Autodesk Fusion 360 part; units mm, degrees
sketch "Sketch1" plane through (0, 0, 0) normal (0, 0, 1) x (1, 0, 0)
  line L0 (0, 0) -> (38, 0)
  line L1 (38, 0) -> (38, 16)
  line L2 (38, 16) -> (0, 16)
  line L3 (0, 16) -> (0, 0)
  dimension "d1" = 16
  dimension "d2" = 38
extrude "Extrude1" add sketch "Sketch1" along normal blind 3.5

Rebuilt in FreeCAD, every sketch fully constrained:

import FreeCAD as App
import Part
import Sketcher

V = App.Vector


def add_polygon(sketch, points):
    """Adds a closed chain of lines whose ends are joined by coincident constraints."""
    first, n = sketch.GeometryCount, len(points)
    for a, b in zip(points, points[1:] + points[:1]):
        sketch.addGeometry(Part.LineSegment(App.Vector(*a, 0), App.Vector(*b, 0)), False)
    for i in range(n):
        sketch.addConstraint(Sketcher.Constraint("Coincident", first + i, 2, first + (i + 1) % n, 1))

doc = App.newDocument("Part")
body = doc.addObject("PartDesign::Body", "Body")

sketch1 = body.newObject("Sketcher::SketchObject", "Sketch")
sketch1.AttachmentSupport = (doc.getObject("XY_Plane"), [""])
sketch1.MapMode = "FlatFace"
add_polygon(sketch1, [(0, 16), (0, 0), (38, 0), (38, 16)])
sketch1.addConstraint(Sketcher.Constraint("Vertical", 0))
sketch1.addConstraint(Sketcher.Constraint("Horizontal", 1))
sketch1.addConstraint(Sketcher.Constraint("Vertical", 2))
sketch1.addConstraint(Sketcher.Constraint("Horizontal", 3))
sketch1.addConstraint(Sketcher.Constraint("Coincident", 0, 2, -1, 1))
sketch1.addConstraint(Sketcher.Constraint("DistanceX", 1, 1, 1, 2, 38.0))
sketch1.addConstraint(Sketcher.Constraint("DistanceY", 0, 2, 0, 1, 16.0))
pad1 = body.newObject("PartDesign::Pad", "Pad")
pad1.Profile = sketch1
pad1.Length = 3.5

doc.recompute()
